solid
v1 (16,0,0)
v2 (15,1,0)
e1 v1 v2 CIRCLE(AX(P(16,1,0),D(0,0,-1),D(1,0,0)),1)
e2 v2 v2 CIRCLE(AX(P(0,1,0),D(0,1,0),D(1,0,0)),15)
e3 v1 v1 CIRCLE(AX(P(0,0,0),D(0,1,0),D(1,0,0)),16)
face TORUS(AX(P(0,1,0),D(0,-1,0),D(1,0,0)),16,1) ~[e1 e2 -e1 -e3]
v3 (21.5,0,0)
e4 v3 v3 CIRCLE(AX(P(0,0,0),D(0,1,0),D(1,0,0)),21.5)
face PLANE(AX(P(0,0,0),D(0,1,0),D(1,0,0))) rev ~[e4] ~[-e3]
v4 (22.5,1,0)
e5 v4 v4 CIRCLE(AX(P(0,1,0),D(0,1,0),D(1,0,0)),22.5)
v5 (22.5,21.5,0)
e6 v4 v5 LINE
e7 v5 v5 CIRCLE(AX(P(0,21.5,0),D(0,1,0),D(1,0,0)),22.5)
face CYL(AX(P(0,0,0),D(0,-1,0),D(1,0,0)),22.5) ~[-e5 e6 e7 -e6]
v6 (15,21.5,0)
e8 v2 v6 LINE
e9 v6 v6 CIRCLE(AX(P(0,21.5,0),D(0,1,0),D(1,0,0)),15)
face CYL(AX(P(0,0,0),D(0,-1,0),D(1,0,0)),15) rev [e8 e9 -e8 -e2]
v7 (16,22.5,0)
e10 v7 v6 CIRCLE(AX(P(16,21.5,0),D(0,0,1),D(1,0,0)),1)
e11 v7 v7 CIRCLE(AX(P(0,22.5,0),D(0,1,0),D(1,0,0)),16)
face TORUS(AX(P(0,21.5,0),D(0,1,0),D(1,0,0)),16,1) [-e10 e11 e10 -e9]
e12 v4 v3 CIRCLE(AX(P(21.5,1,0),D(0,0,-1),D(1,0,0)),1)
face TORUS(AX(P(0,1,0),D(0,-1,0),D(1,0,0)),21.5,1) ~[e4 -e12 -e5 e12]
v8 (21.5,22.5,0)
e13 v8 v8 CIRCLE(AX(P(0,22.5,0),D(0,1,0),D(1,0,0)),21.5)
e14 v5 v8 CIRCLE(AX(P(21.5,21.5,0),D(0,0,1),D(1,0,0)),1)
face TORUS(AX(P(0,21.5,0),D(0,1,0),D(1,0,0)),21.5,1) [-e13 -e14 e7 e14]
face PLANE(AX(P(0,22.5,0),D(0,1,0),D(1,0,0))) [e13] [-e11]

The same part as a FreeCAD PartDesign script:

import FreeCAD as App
import Part
import Sketcher
Q = App.Units.Quantity


def edges_at(feature, points):
    """Names of the edges that pass closest to the given points."""
    edges = feature.Shape.Edges
    near = lambda p: min(range(len(edges)), key=lambda i: edges[i].distToShape(Part.Vertex(*p))[0])
    return sorted({f"Edge{near(p) + 1}" for p in points})

doc = App.newDocument("Part")
body = doc.addObject("PartDesign::Body", "Body")

sketch1 = body.newObject("Sketcher::SketchObject", "Sketch")
sketch1.AttachmentSupport = (doc.getObject("XZ_Plane"), [""])
sketch1.MapMode = "FlatFace"
sketch1.addGeometry([
    Part.Circle(App.Vector(0, 0, 0), App.Vector(0, 0, 1), 22.5),
    Part.Circle(App.Vector(0, 0, 0), App.Vector(0, 0, 1), 15),
], False)
sketch1.addConstraint([
    Sketcher.Constraint("Coincident", 0, 3, -1, 1),
    Sketcher.Constraint("Coincident", 1, 3, -1, 1),
    Sketcher.Constraint("Diameter", 0, Q("45 mm")),
    Sketcher.Constraint("Diameter", 1, Q("30 mm")),
])
pad1 = body.newObject("PartDesign::Pad", "Pad")
pad1.Profile = sketch1
pad1.Length = 22.5
pad1.Reversed = True
doc.recompute()

fillet = body.newObject("PartDesign::Fillet", "Fillet")
fillet.Base = (pad1, edges_at(pad1, [(-22.5, 22.5, 0)]))
fillet.Radius = 1
doc.recompute()

fillet2 = body.newObject("PartDesign::Fillet", "Fillet001")
fillet2.Base = (fillet, edges_at(fillet, [(-22.5, 0, 0), (-15, 0, 0), (-15, 22.5, 0)]))
fillet2.Radius = 1

doc.recompute()
